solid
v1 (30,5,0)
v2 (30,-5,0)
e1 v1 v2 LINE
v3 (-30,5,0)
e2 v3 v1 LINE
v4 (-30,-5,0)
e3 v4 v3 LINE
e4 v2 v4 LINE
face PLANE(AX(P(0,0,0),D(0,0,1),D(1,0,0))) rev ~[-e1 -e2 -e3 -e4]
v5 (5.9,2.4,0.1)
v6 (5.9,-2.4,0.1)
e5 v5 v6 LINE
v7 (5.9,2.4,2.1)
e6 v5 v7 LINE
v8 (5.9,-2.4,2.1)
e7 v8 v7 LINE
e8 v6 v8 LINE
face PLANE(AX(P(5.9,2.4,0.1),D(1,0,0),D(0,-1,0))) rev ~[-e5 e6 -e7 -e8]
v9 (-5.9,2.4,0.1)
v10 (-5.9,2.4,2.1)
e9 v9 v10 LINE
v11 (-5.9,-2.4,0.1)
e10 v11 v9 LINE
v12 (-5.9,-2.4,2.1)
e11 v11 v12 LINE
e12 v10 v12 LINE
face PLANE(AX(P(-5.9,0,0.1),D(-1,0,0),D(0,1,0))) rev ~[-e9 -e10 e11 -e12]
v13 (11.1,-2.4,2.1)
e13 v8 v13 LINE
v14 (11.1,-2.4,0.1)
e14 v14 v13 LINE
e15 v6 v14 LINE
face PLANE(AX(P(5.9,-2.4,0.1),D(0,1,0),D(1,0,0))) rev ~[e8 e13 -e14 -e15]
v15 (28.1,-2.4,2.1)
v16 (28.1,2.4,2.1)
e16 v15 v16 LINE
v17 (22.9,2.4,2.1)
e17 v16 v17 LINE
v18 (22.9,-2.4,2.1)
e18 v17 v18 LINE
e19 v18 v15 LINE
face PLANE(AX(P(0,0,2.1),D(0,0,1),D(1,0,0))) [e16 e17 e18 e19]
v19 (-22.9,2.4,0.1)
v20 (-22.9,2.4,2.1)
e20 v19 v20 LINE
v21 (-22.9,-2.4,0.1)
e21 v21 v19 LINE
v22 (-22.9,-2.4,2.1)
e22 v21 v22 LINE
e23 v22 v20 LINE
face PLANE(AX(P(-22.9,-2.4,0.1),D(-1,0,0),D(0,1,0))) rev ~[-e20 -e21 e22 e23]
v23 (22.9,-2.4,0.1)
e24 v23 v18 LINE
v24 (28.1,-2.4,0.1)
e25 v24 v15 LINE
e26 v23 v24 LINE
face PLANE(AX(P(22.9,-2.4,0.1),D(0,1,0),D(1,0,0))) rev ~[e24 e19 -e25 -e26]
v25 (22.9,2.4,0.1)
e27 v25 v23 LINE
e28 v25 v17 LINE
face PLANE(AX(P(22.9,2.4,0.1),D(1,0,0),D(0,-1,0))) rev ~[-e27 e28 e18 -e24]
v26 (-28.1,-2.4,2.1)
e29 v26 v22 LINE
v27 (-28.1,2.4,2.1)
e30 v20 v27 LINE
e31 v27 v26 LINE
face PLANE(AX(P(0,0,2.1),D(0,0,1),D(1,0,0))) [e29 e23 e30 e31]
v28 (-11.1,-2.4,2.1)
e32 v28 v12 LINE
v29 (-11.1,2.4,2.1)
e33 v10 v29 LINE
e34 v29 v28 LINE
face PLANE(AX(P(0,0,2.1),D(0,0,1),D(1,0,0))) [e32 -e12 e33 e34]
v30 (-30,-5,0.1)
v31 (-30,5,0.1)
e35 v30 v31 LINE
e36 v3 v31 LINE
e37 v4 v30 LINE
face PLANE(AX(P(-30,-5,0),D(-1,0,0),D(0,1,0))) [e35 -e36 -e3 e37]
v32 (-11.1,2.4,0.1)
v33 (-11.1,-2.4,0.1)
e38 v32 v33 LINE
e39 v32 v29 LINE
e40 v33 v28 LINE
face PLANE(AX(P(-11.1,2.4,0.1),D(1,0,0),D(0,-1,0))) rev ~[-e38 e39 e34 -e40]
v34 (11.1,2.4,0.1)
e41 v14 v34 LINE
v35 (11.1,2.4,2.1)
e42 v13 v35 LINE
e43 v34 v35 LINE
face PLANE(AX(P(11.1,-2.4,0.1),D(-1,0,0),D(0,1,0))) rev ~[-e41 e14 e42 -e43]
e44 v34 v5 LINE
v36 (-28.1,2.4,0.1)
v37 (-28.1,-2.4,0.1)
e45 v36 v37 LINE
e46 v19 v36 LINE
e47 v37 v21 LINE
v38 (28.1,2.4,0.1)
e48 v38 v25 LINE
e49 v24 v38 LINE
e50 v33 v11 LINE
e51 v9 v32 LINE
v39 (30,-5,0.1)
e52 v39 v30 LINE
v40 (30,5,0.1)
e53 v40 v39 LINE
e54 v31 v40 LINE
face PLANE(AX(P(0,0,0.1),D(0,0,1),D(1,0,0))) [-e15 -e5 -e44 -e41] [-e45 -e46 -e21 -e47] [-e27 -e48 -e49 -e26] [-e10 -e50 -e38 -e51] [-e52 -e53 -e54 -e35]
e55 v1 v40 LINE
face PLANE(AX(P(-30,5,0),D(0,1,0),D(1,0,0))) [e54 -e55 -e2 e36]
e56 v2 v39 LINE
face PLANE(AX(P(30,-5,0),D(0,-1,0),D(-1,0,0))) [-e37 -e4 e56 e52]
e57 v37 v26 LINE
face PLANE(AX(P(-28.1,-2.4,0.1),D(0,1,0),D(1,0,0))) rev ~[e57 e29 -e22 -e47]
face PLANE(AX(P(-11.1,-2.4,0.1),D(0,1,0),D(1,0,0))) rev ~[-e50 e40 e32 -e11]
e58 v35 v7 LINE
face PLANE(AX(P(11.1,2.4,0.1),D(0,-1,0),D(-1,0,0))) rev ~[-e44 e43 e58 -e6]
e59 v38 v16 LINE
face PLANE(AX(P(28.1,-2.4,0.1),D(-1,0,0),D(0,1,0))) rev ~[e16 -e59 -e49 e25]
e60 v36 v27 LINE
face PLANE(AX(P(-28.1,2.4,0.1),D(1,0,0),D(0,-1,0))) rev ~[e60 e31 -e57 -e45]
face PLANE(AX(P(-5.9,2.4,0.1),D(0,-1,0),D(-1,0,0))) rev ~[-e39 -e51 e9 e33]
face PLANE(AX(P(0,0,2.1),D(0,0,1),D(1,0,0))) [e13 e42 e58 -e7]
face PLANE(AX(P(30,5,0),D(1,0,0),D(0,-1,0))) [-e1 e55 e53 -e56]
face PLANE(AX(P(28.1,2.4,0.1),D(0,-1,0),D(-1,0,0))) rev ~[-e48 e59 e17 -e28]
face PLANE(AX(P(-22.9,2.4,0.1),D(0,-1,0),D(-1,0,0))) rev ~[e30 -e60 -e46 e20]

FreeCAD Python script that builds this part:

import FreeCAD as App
import Part
import Sketcher
from FreeCAD import Vector
Q = App.Units.Quantity

doc = App.newDocument("Part")
params = doc.addObject("Spreadsheet::Sheet", "Params")
for row, (alias, value) in enumerate([
    ("sketch1_width", "60 mm"),
    ("sketch1_height", "10 mm"),
    ("pad1_length", "0.1 mm"),
    ("sketch2_width", "5.2 mm"),
    ("sketch2_height", "4.8 mm"),
    ("pad2_length", "2 mm"),
], start=1):
    params.set(f"A{row}", alias)
    params.set(f"B{row}", "=" + value)
    params.setAlias(f"B{row}", alias)

body = doc.addObject("PartDesign::Body", "Body")

# Sketch on XY plane
sketch1 = body.newObject("Sketcher::SketchObject", "Sketch")
sketch1.AttachmentSupport = (doc.getObject("XY_Plane"), [""])
sketch1.MapMode = "FlatFace"
sketch1.addGeometry([
    Part.LineSegment(Vector(30, 5, 0), Vector(-30, 5, 0)),
    Part.LineSegment(Vector(-30, 5, 0), Vector(-30, -5, 0)),
    Part.LineSegment(Vector(-30, -5, 0), Vector(30, -5, 0)),
    Part.LineSegment(Vector(30, -5, 0), Vector(30, 5, 0)),
], False)
sketch1.addConstraint([
    Sketcher.Constraint("Coincident", 0, 2, 1, 1),
    Sketcher.Constraint("Coincident", 1, 2, 2, 1),
    Sketcher.Constraint("Coincident", 2, 2, 3, 1),
    Sketcher.Constraint("Coincident", 3, 2, 0, 1),
    Sketcher.Constraint("Horizontal", 0),
    Sketcher.Constraint("Vertical", 1),
    Sketcher.Constraint("Horizontal", 2),
    Sketcher.Constraint("Vertical", 3),
    Sketcher.Constraint("Symmetric", 0, 2, 2, 2, -1, 1),
    Sketcher.Constraint("DistanceX", 0, 2, 0, 1, Q("60 mm")),
    Sketcher.Constraint("DistanceY", 1, 2, 1, 1, Q("10 mm")),
])
sketch1.setExpression("Constraints[9]", "Params.sketch1_width")
sketch1.setExpression("Constraints[10]", "Params.sketch1_height")
pad1 = body.newObject("PartDesign::Pad", "Pad")
pad1.Profile = sketch1
pad1.setExpression("Length", "Params.pad1_length")

# Sketch on XY plane
sketch2 = body.newObject("Sketcher::SketchObject", "Sketch001")
sketch2.AttachmentSupport = (doc.getObject("XY_Plane"), [""])
sketch2.MapMode = "FlatFace"
sketch2.AttachmentOffset = App.Placement(Vector(0, 0, 0.1), App.Rotation())
sketch2.addGeometry([
    Part.LineSegment(Vector(-28.1, 2.4, 0), Vector(-28.1, -2.4, 0)),  # 0
    Part.LineSegment(Vector(-28.1, -2.4, 0), Vector(-22.9, -2.4, 0)),  # 1
    Part.LineSegment(Vector(-22.9, -2.4, 0), Vector(-22.9, 2.4, 0)),  # 2
    Part.LineSegment(Vector(-22.9, 2.4, 0), Vector(-28.1, 2.4, 0)),  # 3
    Part.LineSegment(Vector(-11.1, 2.4, 0), Vector(-11.1, -2.4, 0)),  # 4
    Part.LineSegment(Vector(-11.1, -2.4, 0), Vector(-5.9, -2.4, 0)),  # 5
    Part.LineSegment(Vector(-5.9, -2.4, 0), Vector(-5.9, 2.4, 0)),  # 6
    Part.LineSegment(Vector(-5.9, 2.4, 0), Vector(-11.1, 2.4, 0)),  # 7
    Part.LineSegment(Vector(5.9, 2.4, 0), Vector(5.9, -2.4, 0)),  # 8
    Part.LineSegment(Vector(5.9, -2.4, 0), Vector(11.1, -2.4, 0)),  # 9
    Part.LineSegment(Vector(11.1, -2.4, 0), Vector(11.1, 2.4, 0)),  # 10
    Part.LineSegment(Vector(11.1, 2.4, 0), Vector(5.9, 2.4, 0)),  # 11
    Part.LineSegment(Vector(22.9, 2.4, 0), Vector(22.9, -2.4, 0)),  # 12
    Part.LineSegment(Vector(22.9, -2.4, 0), Vector(28.1, -2.4, 0)),  # 13
    Part.LineSegment(Vector(28.1, -2.4, 0), Vector(28.1, 2.4, 0)),  # 14
    Part.LineSegment(Vector(28.1, 2.4, 0), Vector(22.9, 2.4, 0)),  # 15
], False)
sketch2.addConstraint([
    Sketcher.Constraint("Coincident", 0, 2, 1, 1),
    Sketcher.Constraint("Coincident", 1, 2, 2, 1),
    Sketcher.Constraint("Coincident", 2, 2, 3, 1),
    Sketcher.Constraint("Coincident", 3, 2, 0, 1),
    Sketcher.Constraint("Coincident", 4, 2, 5, 1),
    Sketcher.Constraint("Coincident", 5, 2, 6, 1),
    Sketcher.Constraint("Coincident", 6, 2, 7, 1),
    Sketcher.Constraint("Coincident", 7, 2, 4, 1),
    Sketcher.Constraint("Coincident", 8, 2, 9, 1),
    Sketcher.Constraint("Coincident", 9, 2, 10, 1),
    Sketcher.Constraint("Coincident", 10, 2, 11, 1),
    Sketcher.Constraint("Coincident", 11, 2, 8, 1),
    Sketcher.Constraint("Coincident", 12, 2, 13, 1),
    Sketcher.Constraint("Coincident", 13, 2, 14, 1),
    Sketcher.Constraint("Coincident", 14, 2, 15, 1),
    Sketcher.Constraint("Coincident", 15, 2, 12, 1),
    Sketcher.Constraint("Vertical", 0),
    Sketcher.Constraint("Horizontal", 1),
    Sketcher.Constraint("Vertical", 2),
    Sketcher.Constraint("Horizontal", 3),
    Sketcher.Constraint("Vertical", 4),
    Sketcher.Constraint("Horizontal", 5),
    Sketcher.Constraint("Vertical", 6),
    Sketcher.Constraint("Horizontal", 7),
    Sketcher.Constraint("Vertical", 8),
    Sketcher.Constraint("Horizontal", 9),
    Sketcher.Constraint("Vertical", 10),
    Sketcher.Constraint("Horizontal", 11),
    Sketcher.Constraint("Vertical", 12),
    Sketcher.Constraint("Horizontal", 13),
    Sketcher.Constraint("Vertical", 14),
    Sketcher.Constraint("Horizontal", 15),
    Sketcher.Constraint("Symmetric", 6, 2, 8, 2, -1, 1),
    Sketcher.Constraint("Symmetric", 4, 2, 10, 2, -1, 1),
    Sketcher.Constraint("Symmetric", 2, 2, 12, 2, -1, 1),
    Sketcher.Constraint("Symmetric", 0, 2, 14, 2, -1, 1),
    Sketcher.Constraint("Horizontal", 1, 2, 4, 2),
    Sketcher.Constraint("Horizontal", 3, 2, 6, 2),
    Sketcher.Constraint("Horizontal", 5, 2, 8, 2),
    Sketcher.Constraint("Equal", 3, 5),
    Sketcher.Constraint("DistanceX", 1, 1, 1, 2, Q("5.2 mm")),
    Sketcher.Constraint("DistanceY", 0, 2, 0, 1, Q("4.8 mm")),
    Sketcher.Constraint("DistanceX", 0, 2, 4, 2, Q("17 mm")),
    Sketcher.Constraint("DistanceX", 4, 2, 8, 2, Q("17 mm")),
])
sketch2.setExpression("Constraints[40]", "Params.sketch2_width")
sketch2.setExpression("Constraints[41]", "Params.sketch2_height")
pad2 = body.newObject("PartDesign::Pad", "Pad001")
pad2.Profile = sketch2
pad2.setExpression("Length", "Params.pad2_length")

doc.recompute()
